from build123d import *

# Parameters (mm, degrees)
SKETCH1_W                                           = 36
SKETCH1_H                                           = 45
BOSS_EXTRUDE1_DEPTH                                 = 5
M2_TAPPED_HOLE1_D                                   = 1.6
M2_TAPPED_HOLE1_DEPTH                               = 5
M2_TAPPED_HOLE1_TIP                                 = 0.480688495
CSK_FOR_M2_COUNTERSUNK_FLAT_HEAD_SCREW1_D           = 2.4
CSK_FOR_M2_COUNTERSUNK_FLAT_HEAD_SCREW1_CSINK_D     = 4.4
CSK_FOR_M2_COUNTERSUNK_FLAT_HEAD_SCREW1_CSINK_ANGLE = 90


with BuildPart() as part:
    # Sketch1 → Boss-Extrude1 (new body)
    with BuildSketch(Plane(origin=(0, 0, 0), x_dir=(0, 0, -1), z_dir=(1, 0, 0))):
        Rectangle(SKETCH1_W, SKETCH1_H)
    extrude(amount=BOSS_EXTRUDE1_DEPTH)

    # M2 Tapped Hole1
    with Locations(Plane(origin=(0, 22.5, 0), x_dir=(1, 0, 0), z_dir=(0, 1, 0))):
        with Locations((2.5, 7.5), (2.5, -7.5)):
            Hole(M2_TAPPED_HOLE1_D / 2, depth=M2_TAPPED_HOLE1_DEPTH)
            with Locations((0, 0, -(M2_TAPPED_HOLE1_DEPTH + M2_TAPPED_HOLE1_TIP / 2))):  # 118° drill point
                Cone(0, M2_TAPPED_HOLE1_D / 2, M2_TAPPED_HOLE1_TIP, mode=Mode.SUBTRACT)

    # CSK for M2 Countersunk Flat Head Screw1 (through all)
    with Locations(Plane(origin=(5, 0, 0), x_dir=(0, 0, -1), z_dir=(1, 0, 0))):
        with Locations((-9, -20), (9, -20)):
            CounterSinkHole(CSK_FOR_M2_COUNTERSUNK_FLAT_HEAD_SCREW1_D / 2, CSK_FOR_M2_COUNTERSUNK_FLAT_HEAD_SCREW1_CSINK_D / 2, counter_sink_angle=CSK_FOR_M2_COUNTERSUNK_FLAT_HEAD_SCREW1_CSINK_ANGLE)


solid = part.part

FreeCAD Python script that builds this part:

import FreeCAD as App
import Part
import Sketcher
from FreeCAD import Vector

doc = App.newDocument("Part")
body = doc.addObject("PartDesign::Body", "Body")

# Sketch on YZ plane
sketch1 = body.newObject("Sketcher::SketchObject", "Sketch")
sketch1.AttachmentSupport = (doc.getObject("YZ_Plane"), [""])
sketch1.MapMode = "FlatFace"
sketch1.addGeometry(Part.LineSegment(Vector(22, 18, 0), Vector(-22, 18, 0)), False)
sketch1.addGeometry(Part.LineSegment(Vector(-22, 18, 0), Vector(-22, -18, 0)), False)
sketch1.addGeometry(Part.LineSegment(Vector(-22, -18, 0), Vector(22, -18, 0)), False)
sketch1.addGeometry(Part.LineSegment(Vector(22, -18, 0), Vector(22, 18, 0)), False)
sketch1.addConstraint(Sketcher.Constraint("Coincident", 0, 2, 1, 1))
sketch1.addConstraint(Sketcher.Constraint("Coincident", 1, 2, 2, 1))
sketch1.addConstraint(Sketcher.Constraint("Coincident", 2, 2, 3, 1))
sketch1.addConstraint(Sketcher.Constraint("Coincident", 3, 2, 0, 1))
sketch1.addConstraint(Sketcher.Constraint("Horizontal", 0))
sketch1.addConstraint(Sketcher.Constraint("Vertical", 1))
sketch1.addConstraint(Sketcher.Constraint("Horizontal", 2))
sketch1.addConstraint(Sketcher.Constraint("Vertical", 3))
sketch1.addConstraint(Sketcher.Constraint("Symmetric", 0, 2, 2, 2, -1, 1))
sketch1.addConstraint(Sketcher.Constraint("DistanceX", 0, 2, 0, 1, 45.0))
sketch1.addConstraint(Sketcher.Constraint("DistanceY", 1, 2, 1, 1, 36.0))
pad1 = body.newObject("PartDesign::Pad", "Pad")
pad1.Profile = sketch1
pad1.Length = 5

# Sketch on XZ plane
sketch2 = body.newObject("Sketcher::SketchObject", "Sketch001")
sketch2.AttachmentSupport = (doc.getObject("XZ_Plane"), [""])
sketch2.MapMode = "FlatFace"
sketch2.AttachmentOffset = App.Placement(Vector(0, 0, -22.5), App.Rotation())
sketch2.addGeometry(Part.Circle(Vector(2.5, -7.5, 0), Vector(0, 0, 1), 0.8), False)
sketch2.addGeometry(Part.Circle(Vector(2.5, 7.5, 0), Vector(0, 0, 1), 0.8), False)
sketch2.addConstraint(Sketcher.Constraint("Equal", 0, 1))
sketch2.addConstraint(Sketcher.Constraint("Symmetric", 0, 3, 1, 3, -1))
sketch2.addConstraint(Sketcher.Constraint("Diameter", 0, 1.6))
sketch2.addConstraint(Sketcher.Constraint("DistanceY", 0, 3, 1, 3, 15.0))
sketch2.addConstraint(Sketcher.Constraint("DistanceX", -1, 1, 0, 3, 2.5))
doc.recompute()
hole = body.newObject("PartDesign::Hole", "Hole")
hole.Profile = sketch2
hole.ThreadType = "None"
hole.Diameter = 1.6
hole.DepthType = "Dimension"
hole.Depth = 5
hole.DrillPoint = "Angled"
hole.DrillPointAngle = 118
hole.Reversed = True

# Sketch on YZ plane
sketch3 = body.newObject("Sketcher::SketchObject", "Sketch002")
sketch3.AttachmentSupport = (doc.getObject("YZ_Plane"), [""])
sketch3.MapMode = "FlatFace"
sketch3.AttachmentOffset = App.Placement(Vector(0, 0, 5), App.Rotation())
sketch3.addGeometry(Part.Circle(Vector(-20, 9, 0), Vector(0, 0, 1), 1.2), False)
sketch3.addGeometry(Part.Circle(Vector(-20, -9, 0), Vector(0, 0, 1), 1.2), False)
sketch3.addConstraint(Sketcher.Constraint("Equal", 0, 1))
sketch3.addConstraint(Sketcher.Constraint("Symmetric", 0, 3, 1, 3, -1))
sketch3.addConstraint(Sketcher.Constraint("Diameter", 0, 2.4))
sketch3.addConstraint(Sketcher.Constraint("DistanceX", 0, 3, -1, 1, 20.0))
sketch3.addConstraint(Sketcher.Constraint("DistanceY", -1, 1, 0, 3, 9.0))
doc.recompute()
hole2 = body.newObject("PartDesign::Hole", "Hole001")
hole2.Profile = sketch3
hole2.ThreadType = "None"
hole2.Diameter = 2.4
hole2.DepthType = "ThroughAll"
hole2.HoleCutType = "Countersink"
hole2.HoleCutDiameter = 4.4
hole2.HoleCutCountersinkAngle = 90

doc.recompute()
